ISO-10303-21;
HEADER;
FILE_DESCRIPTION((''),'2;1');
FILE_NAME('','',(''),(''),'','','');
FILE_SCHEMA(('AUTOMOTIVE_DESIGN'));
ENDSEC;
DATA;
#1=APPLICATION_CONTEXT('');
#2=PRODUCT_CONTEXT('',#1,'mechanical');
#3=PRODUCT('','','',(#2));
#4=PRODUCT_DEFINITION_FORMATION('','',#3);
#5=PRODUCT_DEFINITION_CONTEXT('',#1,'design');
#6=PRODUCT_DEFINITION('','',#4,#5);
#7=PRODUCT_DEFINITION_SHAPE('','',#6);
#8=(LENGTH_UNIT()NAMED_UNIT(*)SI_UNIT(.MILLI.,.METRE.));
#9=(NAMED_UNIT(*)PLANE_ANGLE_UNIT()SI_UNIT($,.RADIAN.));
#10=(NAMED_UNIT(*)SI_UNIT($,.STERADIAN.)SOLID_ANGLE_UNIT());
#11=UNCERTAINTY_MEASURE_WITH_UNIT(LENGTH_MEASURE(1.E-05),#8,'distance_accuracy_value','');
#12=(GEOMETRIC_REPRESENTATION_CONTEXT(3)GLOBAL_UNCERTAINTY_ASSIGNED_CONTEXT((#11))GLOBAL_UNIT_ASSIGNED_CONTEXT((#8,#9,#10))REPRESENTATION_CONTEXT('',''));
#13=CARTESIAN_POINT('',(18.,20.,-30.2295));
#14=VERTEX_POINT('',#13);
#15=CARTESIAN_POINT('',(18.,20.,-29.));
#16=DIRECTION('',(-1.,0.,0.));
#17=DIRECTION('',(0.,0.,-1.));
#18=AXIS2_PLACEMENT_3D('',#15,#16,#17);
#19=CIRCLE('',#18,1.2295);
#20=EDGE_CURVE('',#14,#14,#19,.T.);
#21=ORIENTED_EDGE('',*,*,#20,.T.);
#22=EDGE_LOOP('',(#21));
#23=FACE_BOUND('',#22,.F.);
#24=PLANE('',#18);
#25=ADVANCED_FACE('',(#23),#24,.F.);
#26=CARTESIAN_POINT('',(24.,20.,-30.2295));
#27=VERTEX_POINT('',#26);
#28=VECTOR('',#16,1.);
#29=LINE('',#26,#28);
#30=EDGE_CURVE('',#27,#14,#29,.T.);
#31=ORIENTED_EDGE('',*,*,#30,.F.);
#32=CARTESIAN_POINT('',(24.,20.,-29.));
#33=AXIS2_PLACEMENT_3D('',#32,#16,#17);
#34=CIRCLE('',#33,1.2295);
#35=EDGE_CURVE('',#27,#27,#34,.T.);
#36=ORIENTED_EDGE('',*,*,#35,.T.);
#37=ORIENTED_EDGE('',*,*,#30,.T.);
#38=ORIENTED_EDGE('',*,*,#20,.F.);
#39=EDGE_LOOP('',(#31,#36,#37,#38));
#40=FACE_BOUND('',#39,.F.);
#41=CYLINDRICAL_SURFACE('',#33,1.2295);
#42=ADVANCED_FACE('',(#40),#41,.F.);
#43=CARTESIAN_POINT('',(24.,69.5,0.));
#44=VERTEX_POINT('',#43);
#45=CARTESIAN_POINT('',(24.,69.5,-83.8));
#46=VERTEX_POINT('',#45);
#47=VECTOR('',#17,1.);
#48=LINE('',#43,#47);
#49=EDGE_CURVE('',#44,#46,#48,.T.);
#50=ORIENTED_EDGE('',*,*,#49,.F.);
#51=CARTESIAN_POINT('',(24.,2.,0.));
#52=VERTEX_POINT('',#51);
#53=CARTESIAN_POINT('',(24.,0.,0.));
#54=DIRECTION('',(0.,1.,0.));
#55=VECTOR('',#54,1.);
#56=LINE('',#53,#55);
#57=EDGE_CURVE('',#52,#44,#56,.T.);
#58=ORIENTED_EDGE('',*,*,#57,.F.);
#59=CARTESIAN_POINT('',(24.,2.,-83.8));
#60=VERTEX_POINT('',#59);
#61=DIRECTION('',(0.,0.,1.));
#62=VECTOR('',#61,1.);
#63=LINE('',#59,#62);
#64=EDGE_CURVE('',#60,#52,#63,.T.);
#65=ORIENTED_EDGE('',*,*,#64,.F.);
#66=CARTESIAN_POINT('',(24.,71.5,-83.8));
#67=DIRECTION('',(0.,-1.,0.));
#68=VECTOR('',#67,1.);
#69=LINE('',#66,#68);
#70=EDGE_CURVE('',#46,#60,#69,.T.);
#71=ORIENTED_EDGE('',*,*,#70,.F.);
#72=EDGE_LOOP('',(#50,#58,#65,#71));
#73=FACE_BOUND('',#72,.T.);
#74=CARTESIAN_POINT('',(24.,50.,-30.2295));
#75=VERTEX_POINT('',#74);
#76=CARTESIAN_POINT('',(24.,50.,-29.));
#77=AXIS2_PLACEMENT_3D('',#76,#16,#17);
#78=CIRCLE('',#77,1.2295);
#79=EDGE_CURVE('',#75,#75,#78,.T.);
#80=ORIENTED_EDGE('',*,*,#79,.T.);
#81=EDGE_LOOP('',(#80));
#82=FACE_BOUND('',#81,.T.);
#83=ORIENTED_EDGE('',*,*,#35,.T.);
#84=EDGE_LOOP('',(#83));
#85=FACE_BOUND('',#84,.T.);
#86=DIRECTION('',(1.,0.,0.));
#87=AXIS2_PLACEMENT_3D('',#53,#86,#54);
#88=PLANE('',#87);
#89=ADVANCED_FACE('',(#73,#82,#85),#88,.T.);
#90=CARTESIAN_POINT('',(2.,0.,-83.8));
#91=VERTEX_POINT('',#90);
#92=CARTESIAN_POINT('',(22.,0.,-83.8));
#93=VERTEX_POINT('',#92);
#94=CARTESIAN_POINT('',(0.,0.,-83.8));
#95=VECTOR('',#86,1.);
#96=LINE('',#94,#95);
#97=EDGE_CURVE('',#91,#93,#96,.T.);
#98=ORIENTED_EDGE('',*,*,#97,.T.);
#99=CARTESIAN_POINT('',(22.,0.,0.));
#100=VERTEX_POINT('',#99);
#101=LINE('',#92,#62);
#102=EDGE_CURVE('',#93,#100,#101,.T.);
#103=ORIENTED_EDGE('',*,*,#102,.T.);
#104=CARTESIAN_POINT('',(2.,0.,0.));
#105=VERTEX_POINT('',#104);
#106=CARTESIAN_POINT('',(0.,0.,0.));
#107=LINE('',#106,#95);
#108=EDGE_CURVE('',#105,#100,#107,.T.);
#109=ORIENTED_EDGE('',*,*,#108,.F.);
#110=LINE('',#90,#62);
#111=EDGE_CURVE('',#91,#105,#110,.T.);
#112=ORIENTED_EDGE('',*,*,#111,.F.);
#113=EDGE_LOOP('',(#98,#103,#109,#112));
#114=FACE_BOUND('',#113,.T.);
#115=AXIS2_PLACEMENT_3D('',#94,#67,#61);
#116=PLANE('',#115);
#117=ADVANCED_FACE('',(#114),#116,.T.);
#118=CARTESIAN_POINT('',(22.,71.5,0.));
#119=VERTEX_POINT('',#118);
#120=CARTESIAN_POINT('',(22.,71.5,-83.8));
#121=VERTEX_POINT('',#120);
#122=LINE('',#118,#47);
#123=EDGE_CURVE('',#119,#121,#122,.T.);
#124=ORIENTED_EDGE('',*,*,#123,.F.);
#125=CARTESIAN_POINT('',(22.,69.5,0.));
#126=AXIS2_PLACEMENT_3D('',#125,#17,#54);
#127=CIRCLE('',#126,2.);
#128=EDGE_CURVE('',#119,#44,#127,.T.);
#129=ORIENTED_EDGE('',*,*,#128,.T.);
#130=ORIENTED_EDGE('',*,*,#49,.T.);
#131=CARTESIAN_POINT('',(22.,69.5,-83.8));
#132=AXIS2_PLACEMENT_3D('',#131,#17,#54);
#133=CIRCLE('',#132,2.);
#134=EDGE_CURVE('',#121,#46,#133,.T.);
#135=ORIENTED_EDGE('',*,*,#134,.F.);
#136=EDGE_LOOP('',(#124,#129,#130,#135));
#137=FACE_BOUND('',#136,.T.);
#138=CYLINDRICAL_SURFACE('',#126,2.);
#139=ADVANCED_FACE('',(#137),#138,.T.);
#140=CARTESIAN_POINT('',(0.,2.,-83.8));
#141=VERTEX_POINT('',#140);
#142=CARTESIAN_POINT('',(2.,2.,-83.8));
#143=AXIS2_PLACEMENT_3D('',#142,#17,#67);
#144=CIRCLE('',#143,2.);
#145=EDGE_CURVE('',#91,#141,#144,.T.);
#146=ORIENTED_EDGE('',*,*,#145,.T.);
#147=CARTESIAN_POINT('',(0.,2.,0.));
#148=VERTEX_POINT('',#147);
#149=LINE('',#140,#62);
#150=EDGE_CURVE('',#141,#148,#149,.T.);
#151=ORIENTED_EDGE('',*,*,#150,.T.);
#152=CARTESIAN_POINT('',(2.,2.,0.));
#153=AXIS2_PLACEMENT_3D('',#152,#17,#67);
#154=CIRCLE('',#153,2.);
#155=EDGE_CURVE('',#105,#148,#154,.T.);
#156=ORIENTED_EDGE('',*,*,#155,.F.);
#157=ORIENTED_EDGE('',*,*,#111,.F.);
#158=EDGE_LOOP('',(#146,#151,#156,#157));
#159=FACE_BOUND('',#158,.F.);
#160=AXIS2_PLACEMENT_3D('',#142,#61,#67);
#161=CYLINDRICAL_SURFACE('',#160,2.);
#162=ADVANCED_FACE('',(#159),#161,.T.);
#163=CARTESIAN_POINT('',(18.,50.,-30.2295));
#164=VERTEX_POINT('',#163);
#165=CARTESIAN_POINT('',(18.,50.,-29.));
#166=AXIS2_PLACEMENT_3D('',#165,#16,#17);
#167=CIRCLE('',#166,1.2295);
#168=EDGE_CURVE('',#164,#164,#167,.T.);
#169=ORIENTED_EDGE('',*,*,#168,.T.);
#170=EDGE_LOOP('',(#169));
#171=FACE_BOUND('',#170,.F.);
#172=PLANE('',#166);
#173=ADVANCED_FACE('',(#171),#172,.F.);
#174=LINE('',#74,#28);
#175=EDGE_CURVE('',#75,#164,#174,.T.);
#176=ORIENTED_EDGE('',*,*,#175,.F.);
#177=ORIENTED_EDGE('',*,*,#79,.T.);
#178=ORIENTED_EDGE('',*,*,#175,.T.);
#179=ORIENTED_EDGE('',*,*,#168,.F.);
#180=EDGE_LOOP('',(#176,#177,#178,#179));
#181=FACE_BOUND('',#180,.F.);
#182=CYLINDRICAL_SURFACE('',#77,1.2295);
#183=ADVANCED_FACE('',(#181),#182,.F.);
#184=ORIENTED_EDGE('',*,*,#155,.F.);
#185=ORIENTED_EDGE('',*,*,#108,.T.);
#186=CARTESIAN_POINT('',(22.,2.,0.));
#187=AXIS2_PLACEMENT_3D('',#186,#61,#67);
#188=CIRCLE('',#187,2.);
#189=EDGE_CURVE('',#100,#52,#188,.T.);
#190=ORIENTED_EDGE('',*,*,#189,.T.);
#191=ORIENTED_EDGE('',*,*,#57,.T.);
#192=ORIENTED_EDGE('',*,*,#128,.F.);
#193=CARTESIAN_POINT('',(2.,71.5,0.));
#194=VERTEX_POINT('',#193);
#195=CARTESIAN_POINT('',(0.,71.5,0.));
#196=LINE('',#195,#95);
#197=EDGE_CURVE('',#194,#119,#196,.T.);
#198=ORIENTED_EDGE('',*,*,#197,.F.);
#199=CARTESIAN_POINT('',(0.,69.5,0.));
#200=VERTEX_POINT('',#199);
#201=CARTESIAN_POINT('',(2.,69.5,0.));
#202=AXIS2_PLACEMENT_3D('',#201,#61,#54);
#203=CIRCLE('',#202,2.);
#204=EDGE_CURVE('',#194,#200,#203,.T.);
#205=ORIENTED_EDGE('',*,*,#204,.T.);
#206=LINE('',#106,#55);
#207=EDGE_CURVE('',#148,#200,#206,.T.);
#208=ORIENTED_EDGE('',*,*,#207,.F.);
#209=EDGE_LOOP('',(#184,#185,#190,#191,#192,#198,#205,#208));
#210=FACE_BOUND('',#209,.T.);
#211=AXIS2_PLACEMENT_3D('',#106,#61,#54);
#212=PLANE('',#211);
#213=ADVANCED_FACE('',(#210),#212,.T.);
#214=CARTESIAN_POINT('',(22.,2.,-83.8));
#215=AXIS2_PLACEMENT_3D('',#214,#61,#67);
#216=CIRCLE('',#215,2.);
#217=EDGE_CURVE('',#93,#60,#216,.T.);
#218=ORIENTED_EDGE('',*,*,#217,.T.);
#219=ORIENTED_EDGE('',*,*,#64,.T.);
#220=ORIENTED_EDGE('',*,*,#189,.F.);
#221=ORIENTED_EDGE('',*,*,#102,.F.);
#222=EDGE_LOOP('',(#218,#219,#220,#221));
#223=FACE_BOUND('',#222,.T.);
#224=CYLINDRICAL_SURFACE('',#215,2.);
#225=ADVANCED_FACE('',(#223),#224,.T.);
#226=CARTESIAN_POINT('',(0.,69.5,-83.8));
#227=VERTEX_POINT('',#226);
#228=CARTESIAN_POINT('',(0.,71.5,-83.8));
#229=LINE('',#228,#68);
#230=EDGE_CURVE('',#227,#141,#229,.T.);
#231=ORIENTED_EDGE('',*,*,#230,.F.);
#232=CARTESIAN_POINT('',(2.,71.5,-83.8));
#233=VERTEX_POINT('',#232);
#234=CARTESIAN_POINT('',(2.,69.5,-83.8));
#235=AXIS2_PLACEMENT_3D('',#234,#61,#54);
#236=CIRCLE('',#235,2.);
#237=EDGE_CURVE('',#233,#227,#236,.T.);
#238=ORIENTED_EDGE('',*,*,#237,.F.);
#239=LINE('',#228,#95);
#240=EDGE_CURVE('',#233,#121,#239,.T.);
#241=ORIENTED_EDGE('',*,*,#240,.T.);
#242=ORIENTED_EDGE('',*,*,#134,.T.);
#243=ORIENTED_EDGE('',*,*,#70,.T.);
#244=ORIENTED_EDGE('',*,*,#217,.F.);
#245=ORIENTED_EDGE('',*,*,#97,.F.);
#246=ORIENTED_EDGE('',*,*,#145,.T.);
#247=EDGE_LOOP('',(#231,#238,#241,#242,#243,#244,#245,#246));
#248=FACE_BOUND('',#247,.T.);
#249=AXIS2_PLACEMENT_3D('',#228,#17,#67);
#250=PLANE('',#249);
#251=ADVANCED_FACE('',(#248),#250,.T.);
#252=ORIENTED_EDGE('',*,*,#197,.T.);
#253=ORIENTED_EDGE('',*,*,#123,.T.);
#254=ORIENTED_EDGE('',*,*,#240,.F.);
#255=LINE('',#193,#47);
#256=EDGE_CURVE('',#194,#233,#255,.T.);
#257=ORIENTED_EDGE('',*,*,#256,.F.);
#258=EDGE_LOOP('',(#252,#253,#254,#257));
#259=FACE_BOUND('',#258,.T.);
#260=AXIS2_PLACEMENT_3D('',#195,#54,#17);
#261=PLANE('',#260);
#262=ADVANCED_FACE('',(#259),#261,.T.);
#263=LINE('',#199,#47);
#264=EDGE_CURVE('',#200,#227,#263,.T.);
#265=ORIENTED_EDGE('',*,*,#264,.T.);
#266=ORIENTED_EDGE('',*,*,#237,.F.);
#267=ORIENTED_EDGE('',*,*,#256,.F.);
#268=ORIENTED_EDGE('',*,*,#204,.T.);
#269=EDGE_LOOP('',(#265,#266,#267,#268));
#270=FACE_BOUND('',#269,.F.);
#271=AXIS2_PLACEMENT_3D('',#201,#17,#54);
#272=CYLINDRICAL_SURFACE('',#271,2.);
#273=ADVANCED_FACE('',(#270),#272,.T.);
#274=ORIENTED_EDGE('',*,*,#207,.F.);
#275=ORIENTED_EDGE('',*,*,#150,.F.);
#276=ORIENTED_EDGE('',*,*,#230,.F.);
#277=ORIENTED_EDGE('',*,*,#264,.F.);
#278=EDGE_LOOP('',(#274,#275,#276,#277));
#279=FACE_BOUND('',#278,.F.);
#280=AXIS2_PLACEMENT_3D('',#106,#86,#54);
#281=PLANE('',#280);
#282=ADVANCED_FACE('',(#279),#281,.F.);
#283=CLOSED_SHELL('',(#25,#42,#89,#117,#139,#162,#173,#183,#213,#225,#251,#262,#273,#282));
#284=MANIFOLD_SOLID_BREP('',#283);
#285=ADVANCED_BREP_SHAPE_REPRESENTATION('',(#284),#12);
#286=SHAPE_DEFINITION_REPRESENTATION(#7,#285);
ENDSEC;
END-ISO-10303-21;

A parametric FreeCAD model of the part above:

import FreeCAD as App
import Part
import Sketcher


def edges_at(feature, points):
    """Names of the edges that pass closest to the given points."""
    edges = feature.Shape.Edges
    near = lambda p: min(range(len(edges)), key=lambda i: edges[i].distToShape(Part.Vertex(*p))[0])
    return sorted({f"Edge{near(p) + 1}" for p in points})


def add_polygon(sketch, points):
    """Adds a closed chain of lines whose ends are joined by coincident constraints."""
    first, n = sketch.GeometryCount, len(points)
    for a, b in zip(points, points[1:] + points[:1]):
        sketch.addGeometry(Part.LineSegment(App.Vector(*a, 0), App.Vector(*b, 0)), False)
    for i in range(n):
        sketch.addConstraint(Sketcher.Constraint("Coincident", first + i, 2, first + (i + 1) % n, 1))

doc = App.newDocument("Part")
body = doc.addObject("PartDesign::Body", "Body")

# Sketch on YZ plane
sketch1 = doc.addObject("Sketcher::SketchObject", "Sketch")
body.addObject(sketch1)
sketch1.AttachmentSupport = (doc.YZ_Plane, [""])
sketch1.MapMode = "FlatFace"
add_polygon(sketch1, [(72, 0), (0, 0), (0, -84), (72, -84)])  # lines 0-3
sketch1.addConstraint([
    Sketcher.Constraint("Horizontal", 0),
    Sketcher.Constraint("Vertical", 1),
    Sketcher.Constraint("Horizontal", 2),
    Sketcher.Constraint("Vertical", 3),
    Sketcher.Constraint("Coincident", 0, 2, -1, 1),
    Sketcher.Constraint("DistanceX", 0, 2, 0, 1, 71.5),
    Sketcher.Constraint("DistanceY", 1, 2, 1, 1, 83.8),
])
pad1 = doc.addObject("PartDesign::Pad", "Pad")
body.addObject(pad1)
pad1.Profile = sketch1
pad1.Length = 24
doc.recompute()

fillet = doc.addObject("PartDesign::Fillet", "Fillet")
body.addObject(fillet)
fillet.Base = (pad1, edges_at(pad1, [
    (24, 71.5, -41.9),
    (0, 71.5, -41.9),
    (24, 0, -41.9),
    (0, 0, -41.9),
]))
fillet.Radius = 2

# Sketch on YZ plane
sketch2 = doc.addObject("Sketcher::SketchObject", "Sketch001")
body.addObject(sketch2)
sketch2.AttachmentSupport = (doc.YZ_Plane, [""])
sketch2.MapMode = "FlatFace"
sketch2.AttachmentOffset = App.Placement(App.Vector(0, 0, 24), App.Rotation())
sketch2.addGeometry([
    Part.Circle(App.Vector(20, -29, 0), App.Vector(0, 0, 1), 1.2),
    Part.Circle(App.Vector(50, -29, 0), App.Vector(0, 0, 1), 1.2),
], False)
sketch2.addConstraint([
    Sketcher.Constraint("Equal", 0, 1),
    Sketcher.Constraint("Horizontal", 0, 3, 1, 3),
    Sketcher.Constraint("Diameter", 0, 2.459),
    Sketcher.Constraint("DistanceX", -1, 1, 0, 3, 20.0),
    Sketcher.Constraint("DistanceY", 0, 3, -1, 1, 29.0),
    Sketcher.Constraint("DistanceX", -1, 1, 1, 3, 50.0),
])
doc.recompute()
hole = doc.addObject("PartDesign::Hole", "Hole")
body.addObject(hole)
hole.Profile = sketch2
hole.ThreadType = "None"
hole.Diameter = 2.459
hole.DepthType = "Dimension"
hole.Depth = 6
hole.DrillPoint = "Flat"

doc.recompute()
